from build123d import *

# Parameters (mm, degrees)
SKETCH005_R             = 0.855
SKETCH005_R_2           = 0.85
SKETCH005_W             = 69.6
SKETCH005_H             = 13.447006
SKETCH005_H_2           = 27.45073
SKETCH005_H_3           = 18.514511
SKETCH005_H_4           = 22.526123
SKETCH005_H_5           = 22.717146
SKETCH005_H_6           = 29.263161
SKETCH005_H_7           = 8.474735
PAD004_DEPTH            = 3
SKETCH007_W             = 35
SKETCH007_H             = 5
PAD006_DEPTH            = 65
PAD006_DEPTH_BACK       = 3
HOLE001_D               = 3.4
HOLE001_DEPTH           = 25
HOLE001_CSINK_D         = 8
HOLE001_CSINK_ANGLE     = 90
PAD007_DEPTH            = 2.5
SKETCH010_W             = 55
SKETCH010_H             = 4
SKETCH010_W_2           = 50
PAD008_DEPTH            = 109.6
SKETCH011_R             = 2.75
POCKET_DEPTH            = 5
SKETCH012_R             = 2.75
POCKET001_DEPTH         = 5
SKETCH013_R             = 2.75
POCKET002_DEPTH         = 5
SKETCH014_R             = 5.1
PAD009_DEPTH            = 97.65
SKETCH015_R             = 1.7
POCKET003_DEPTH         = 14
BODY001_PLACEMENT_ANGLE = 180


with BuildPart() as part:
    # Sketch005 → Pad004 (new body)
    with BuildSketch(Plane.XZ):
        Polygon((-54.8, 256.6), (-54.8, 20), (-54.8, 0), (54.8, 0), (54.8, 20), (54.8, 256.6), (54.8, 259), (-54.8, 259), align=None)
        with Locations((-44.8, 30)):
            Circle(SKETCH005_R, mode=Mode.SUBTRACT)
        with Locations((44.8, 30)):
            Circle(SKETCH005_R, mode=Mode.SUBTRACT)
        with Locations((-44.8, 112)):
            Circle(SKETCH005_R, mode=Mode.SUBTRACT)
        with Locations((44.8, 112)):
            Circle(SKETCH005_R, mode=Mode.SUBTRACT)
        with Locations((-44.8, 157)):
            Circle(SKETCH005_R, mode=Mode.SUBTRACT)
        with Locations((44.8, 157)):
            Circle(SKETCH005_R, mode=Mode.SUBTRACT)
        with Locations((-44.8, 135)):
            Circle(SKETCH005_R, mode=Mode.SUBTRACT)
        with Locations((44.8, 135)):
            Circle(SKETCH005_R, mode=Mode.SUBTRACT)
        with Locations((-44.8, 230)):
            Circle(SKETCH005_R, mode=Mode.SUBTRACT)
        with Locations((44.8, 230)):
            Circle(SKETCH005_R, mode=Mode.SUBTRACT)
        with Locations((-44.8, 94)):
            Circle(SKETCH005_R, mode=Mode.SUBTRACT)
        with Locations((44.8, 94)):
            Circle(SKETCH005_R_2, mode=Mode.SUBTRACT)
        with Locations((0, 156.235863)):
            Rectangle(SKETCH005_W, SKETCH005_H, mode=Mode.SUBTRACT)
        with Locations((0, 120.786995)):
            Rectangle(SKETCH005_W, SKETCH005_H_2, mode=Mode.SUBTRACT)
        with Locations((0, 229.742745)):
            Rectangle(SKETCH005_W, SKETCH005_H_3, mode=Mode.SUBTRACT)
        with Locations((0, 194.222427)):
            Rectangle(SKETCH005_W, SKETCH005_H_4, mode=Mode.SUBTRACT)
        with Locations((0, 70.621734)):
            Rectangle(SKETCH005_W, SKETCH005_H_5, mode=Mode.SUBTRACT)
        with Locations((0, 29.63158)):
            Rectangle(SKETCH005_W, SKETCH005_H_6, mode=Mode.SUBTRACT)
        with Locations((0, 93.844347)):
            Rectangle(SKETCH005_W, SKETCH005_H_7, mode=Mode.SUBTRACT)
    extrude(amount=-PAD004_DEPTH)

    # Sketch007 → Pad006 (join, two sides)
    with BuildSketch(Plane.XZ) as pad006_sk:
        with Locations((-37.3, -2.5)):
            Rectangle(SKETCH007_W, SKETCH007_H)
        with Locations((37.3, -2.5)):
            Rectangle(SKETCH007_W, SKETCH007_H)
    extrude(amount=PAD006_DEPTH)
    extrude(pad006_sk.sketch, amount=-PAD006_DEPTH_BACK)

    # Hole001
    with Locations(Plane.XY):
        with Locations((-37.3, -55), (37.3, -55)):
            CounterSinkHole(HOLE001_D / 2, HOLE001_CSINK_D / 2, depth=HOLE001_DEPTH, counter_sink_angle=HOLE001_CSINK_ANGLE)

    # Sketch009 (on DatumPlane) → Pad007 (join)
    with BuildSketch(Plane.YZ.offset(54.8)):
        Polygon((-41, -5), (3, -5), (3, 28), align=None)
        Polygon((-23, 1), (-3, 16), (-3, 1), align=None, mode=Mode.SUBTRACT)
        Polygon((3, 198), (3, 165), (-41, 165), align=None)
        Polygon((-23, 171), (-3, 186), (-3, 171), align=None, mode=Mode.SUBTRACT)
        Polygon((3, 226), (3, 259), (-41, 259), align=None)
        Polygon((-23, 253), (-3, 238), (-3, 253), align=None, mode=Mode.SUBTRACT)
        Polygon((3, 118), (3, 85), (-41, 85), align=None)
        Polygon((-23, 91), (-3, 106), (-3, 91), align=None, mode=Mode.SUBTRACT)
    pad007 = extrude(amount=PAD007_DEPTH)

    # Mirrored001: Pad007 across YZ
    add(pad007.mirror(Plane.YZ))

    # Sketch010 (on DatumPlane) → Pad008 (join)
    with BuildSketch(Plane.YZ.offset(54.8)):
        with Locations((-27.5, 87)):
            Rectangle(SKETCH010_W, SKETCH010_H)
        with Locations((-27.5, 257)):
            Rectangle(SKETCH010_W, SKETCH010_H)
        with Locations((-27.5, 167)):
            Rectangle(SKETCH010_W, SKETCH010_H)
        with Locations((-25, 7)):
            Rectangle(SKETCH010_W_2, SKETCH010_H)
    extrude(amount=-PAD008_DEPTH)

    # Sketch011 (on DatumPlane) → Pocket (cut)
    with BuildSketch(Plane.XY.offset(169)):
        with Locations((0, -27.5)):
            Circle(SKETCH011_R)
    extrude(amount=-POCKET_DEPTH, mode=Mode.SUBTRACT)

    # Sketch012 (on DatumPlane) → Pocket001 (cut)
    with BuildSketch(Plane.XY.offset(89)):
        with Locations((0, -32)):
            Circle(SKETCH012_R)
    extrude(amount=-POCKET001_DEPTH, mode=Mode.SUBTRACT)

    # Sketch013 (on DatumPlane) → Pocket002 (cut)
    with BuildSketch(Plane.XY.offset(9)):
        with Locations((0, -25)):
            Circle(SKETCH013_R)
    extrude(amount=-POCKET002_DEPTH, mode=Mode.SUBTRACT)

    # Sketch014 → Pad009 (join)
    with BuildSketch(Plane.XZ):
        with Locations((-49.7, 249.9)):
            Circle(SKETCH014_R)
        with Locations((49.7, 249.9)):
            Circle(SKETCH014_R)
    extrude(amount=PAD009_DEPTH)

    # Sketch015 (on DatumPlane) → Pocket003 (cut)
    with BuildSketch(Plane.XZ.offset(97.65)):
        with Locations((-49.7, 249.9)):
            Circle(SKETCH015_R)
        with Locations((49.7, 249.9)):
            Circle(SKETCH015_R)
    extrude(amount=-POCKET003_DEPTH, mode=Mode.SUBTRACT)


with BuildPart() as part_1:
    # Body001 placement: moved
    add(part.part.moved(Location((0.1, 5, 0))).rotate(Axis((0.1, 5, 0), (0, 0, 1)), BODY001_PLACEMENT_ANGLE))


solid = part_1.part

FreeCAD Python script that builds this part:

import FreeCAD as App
import Part
import Sketcher

doc = App.newDocument("Part")
body = doc.addObject("PartDesign::Body", "Body")

# Sketch on XZ plane
sketch1 = doc.addObject("Sketcher::SketchObject", "Sketch")
body.addObject(sketch1)
sketch1.AttachmentSupport = (doc.XZ_Plane, [""])
sketch1.MapMode = "FlatFace"
sketch1.addGeometry([
    Part.LineSegment(App.Vector(-54.8, 0, 0), App.Vector(54.8, 0, 0)),  # 0
    Part.LineSegment(App.Vector(54.8, 0, 0), App.Vector(54.8, 259, 0)),  # 1
    Part.LineSegment(App.Vector(54.8, 259, 0), App.Vector(-54.8, 259, 0)),  # 2
    Part.LineSegment(App.Vector(-54.8, 259, 0), App.Vector(-54.8, 0, 0)),  # 3
    Part.Circle(App.Vector(-44.8, 30, 0), App.Vector(0, 0, 1), 0.855),  # 4
    Part.Circle(App.Vector(-44.8, 94, 0), App.Vector(0, 0, 1), 0.855),  # 5
    Part.Circle(App.Vector(-44.8, 112, 0), App.Vector(0, 0, 1), 0.855),  # 6
    Part.LineSegment(App.Vector(34.8, 14.999999, 0), App.Vector(-34.8, 14.999999, 0)),  # 7
    Part.LineSegment(App.Vector(-34.8, 14.999999, 0), App.Vector(-34.8, 44.26316, 0)),  # 8
    Part.LineSegment(App.Vector(-34.8, 44.26316, 0), App.Vector(34.8, 44.26316, 0)),  # 9
    Part.LineSegment(App.Vector(34.8, 44.26316, 0), App.Vector(34.8, 14.999999, 0)),  # 10
    Part.LineSegment(App.Vector(34.8, 59.263161, 0), App.Vector(-34.8, 59.263161, 0)),  # 11
    Part.LineSegment(App.Vector(-34.8, 59.263161, 0), App.Vector(-34.8, 81.980307, 0)),  # 12
    Part.LineSegment(App.Vector(-34.8, 81.980307, 0), App.Vector(34.8, 81.980307, 0)),  # 13
    Part.LineSegment(App.Vector(34.8, 81.980307, 0), App.Vector(34.8, 59.263161, 0)),  # 14
    Part.Circle(App.Vector(44.8, 30, 0), App.Vector(0, 0, 1), 0.855),  # 15
    Part.LineSegment(App.Vector(34.8, 89.606979, 0), App.Vector(-34.8, 89.606979, 0)),  # 16
    Part.LineSegment(App.Vector(-34.8, 89.606979, 0), App.Vector(-34.8, 98.081715, 0)),  # 17
    Part.LineSegment(App.Vector(-34.8, 98.081715, 0), App.Vector(34.8, 98.081715, 0)),  # 18
    Part.LineSegment(App.Vector(34.8, 98.081715, 0), App.Vector(34.8, 89.606979, 0)),  # 19
    Part.LineSegment(App.Vector(34.8, 107.06163, 0), App.Vector(-34.8, 107.06163, 0)),  # 20
    Part.LineSegment(App.Vector(-34.8, 107.06163, 0), App.Vector(-34.8, 134.51236, 0)),  # 21
    Part.LineSegment(App.Vector(-34.8, 134.51236, 0), App.Vector(34.8, 134.51236, 0)),  # 22
    Part.LineSegment(App.Vector(34.8, 134.51236, 0), App.Vector(34.8, 107.06163, 0)),  # 23
    Part.Circle(App.Vector(44.8, 94, 0), App.Vector(0, 0, 1), 0.85),  # 24
    Part.Circle(App.Vector(44.8, 112, 0), App.Vector(0, 0, 1), 0.855),  # 25
    Part.Circle(App.Vector(-44.8, 135, 0), App.Vector(0, 0, 1), 0.855),  # 26
    Part.Circle(App.Vector(-44.8, 157, 0), App.Vector(0, 0, 1), 0.855),  # 27
    Part.Circle(App.Vector(-44.8, 230, 0), App.Vector(0, 0, 1), 0.855),  # 28
    Part.LineSegment(App.Vector(34.8, 149.51236, 0), App.Vector(-34.8, 149.51236, 0)),  # 29
    Part.LineSegment(App.Vector(-34.8, 149.51236, 0), App.Vector(-34.8, 162.959366, 0)),  # 30
    Part.LineSegment(App.Vector(-34.8, 162.959366, 0), App.Vector(34.8, 162.959366, 0)),  # 31
    Part.LineSegment(App.Vector(34.8, 162.959366, 0), App.Vector(34.8, 149.51236, 0)),  # 32
    Part.Circle(App.Vector(44.8, 135, 0), App.Vector(0, 0, 1), 0.855),  # 33
    Part.Circle(App.Vector(44.8, 157, 0), App.Vector(0, 0, 1), 0.855),  # 34
    Part.LineSegment(App.Vector(34.8, 182.959365, 0), App.Vector(-34.8, 182.959365, 0)),  # 35
    Part.LineSegment(App.Vector(-34.8, 182.959365, 0), App.Vector(-34.8, 205.485489, 0)),  # 36
    Part.LineSegment(App.Vector(-34.8, 205.485489, 0), App.Vector(34.8, 205.485489, 0)),  # 37
    Part.LineSegment(App.Vector(34.8, 205.485489, 0), App.Vector(34.8, 182.959365, 0)),  # 38
    Part.LineSegment(App.Vector(34.8, 220.485489, 0), App.Vector(-34.8, 220.485489, 0)),  # 39
    Part.LineSegment(App.Vector(-34.8, 220.485489, 0), App.Vector(-34.8, 239, 0)),  # 40
    Part.LineSegment(App.Vector(-34.8, 239, 0), App.Vector(34.8, 239, 0)),  # 41
    Part.LineSegment(App.Vector(34.8, 239, 0), App.Vector(34.8, 220.485489, 0)),  # 42
    Part.Circle(App.Vector(44.8, 230, 0), App.Vector(0, 0, 1), 0.855),  # 43
], False)
sketch1.addConstraint([
    Sketcher.Constraint("Coincident", 0, 2, 1, 1),
    Sketcher.Constraint("Coincident", 1, 2, 2, 1),
    Sketcher.Constraint("Coincident", 2, 2, 3, 1),
    Sketcher.Constraint("Coincident", 3, 2, 0, 1),
    Sketcher.Constraint("Coincident", 7, 2, 8, 1),
    Sketcher.Constraint("Coincident", 8, 2, 9, 1),
    Sketcher.Constraint("Coincident", 9, 2, 10, 1),
    Sketcher.Constraint("Coincident", 10, 2, 7, 1),
    Sketcher.Constraint("Coincident", 11, 2, 12, 1),
    Sketcher.Constraint("Coincident", 12, 2, 13, 1),
    Sketcher.Constraint("Coincident", 13, 2, 14, 1),
    Sketcher.Constraint("Coincident", 14, 2, 11, 1),
    Sketcher.Constraint("Coincident", 16, 2, 17, 1),
    Sketcher.Constraint("Coincident", 17, 2, 18, 1),
    Sketcher.Constraint("Coincident", 18, 2, 19, 1),
    Sketcher.Constraint("Coincident", 19, 2, 16, 1),
    Sketcher.Constraint("Coincident", 20, 2, 21, 1),
    Sketcher.Constraint("Coincident", 21, 2, 22, 1),
    Sketcher.Constraint("Coincident", 22, 2, 23, 1),
    Sketcher.Constraint("Coincident", 23, 2, 20, 1),
    Sketcher.Constraint("Coincident", 29, 2, 30, 1),
    Sketcher.Constraint("Coincident", 30, 2, 31, 1),
    Sketcher.Constraint("Coincident", 31, 2, 32, 1),
    Sketcher.Constraint("Coincident", 32, 2, 29, 1),
    Sketcher.Constraint("Coincident", 35, 2, 36, 1),
    Sketcher.Constraint("Coincident", 36, 2, 37, 1),
    Sketcher.Constraint("Coincident", 37, 2, 38, 1),
    Sketcher.Constraint("Coincident", 38, 2, 35, 1),
    Sketcher.Constraint("Coincident", 39, 2, 40, 1),
    Sketcher.Constraint("Coincident", 40, 2, 41, 1),
    Sketcher.Constraint("Coincident", 41, 2, 42, 1),
    Sketcher.Constraint("Coincident", 42, 2, 39, 1),
    Sketcher.Constraint("Horizontal", 0),
    Sketcher.Constraint("Vertical", 1),
    Sketcher.Constraint("Horizontal", 2),
    Sketcher.Constraint("Vertical", 3),
    Sketcher.Constraint("Horizontal", 7),
    Sketcher.Constraint("Vertical", 8),
    Sketcher.Constraint("Horizontal", 9),
    Sketcher.Constraint("Vertical", 10),
    Sketcher.Constraint("Horizontal", 11),
    Sketcher.Constraint("Vertical", 12),
    Sketcher.Constraint("Horizontal", 13),
    Sketcher.Constraint("Vertical", 14),
    Sketcher.Constraint("Horizontal", 16),
    Sketcher.Constraint("Vertical", 17),
    Sketcher.Constraint("Horizontal", 18),
    Sketcher.Constraint("Vertical", 19),
    Sketcher.Constraint("Horizontal", 20),
    Sketcher.Constraint("Vertical", 21),
    Sketcher.Constraint("Horizontal", 22),
    Sketcher.Constraint("Vertical", 23),
    Sketcher.Constraint("Horizontal", 29),
    Sketcher.Constraint("Vertical", 30),
    Sketcher.Constraint("Horizontal", 31),
    Sketcher.Constraint("Vertical", 32),
    Sketcher.Constraint("Horizontal", 35),
    Sketcher.Constraint("Vertical", 36),
    Sketcher.Constraint("Horizontal", 37),
    Sketcher.Constraint("Vertical", 38),
    Sketcher.Constraint("Horizontal", 39),
    Sketcher.Constraint("Vertical", 40),
    Sketcher.Constraint("Horizontal", 41),
    Sketcher.Constraint("Vertical", 42),
    Sketcher.Constraint("Equal", 4, 5),
    Sketcher.Constraint("Equal", 5, 6),
    Sketcher.Constraint("Equal", 6, 15),
    Sketcher.Constraint("Equal", 15, 25),
    Sketcher.Constraint("Equal", 25, 26),
    Sketcher.Constraint("Equal", 26, 27),
    Sketcher.Constraint("Equal", 27, 28),
    Sketcher.Constraint("Equal", 28, 33),
    Sketcher.Constraint("Equal", 33, 34),
    Sketcher.Constraint("Equal", 34, 43),
    Sketcher.Constraint("Symmetric", 0, 2, 3, 2, -1, 1),
    Sketcher.Constraint("Symmetric", 4, 3, 15, 3, -2),
    Sketcher.Constraint("Symmetric", 5, 3, 24, 3, -2),
    Sketcher.Constraint("Symmetric", 6, 3, 25, 3, -2),
    Sketcher.Constraint("Symmetric", 26, 3, 33, 3, -2),
    Sketcher.Constraint("Symmetric", 27, 3, 34, 3, -2),
    Sketcher.Constraint("Symmetric", 28, 3, 43, 3, -2),
    Sketcher.Constraint("Vertical", 4, 3, 5, 3),
    Sketcher.Constraint("Vertical", 5, 3, 6, 3),
    Sketcher.Constraint("Vertical", 6, 3, 26, 3),
    Sketcher.Constraint("Vertical", 26, 3, 27, 3),
    Sketcher.Constraint("Vertical", 27, 3, 28, 3),
    Sketcher.Constraint("Vertical", 8, 2, 11, 2),
    Sketcher.Constraint("Vertical", 10, 2, 13, 2),
    Sketcher.Constraint("Vertical", 12, 2, 16, 2),
    Sketcher.Constraint("Vertical", 14, 2, 18, 2),
    Sketcher.Constraint("Vertical", 17, 2, 20, 2),
    Sketcher.Constraint("Vertical", 19, 2, 22, 2),
    Sketcher.Constraint("Vertical", 21, 2, 29, 2),
    Sketcher.Constraint("Vertical", 23, 2, 31, 2),
    Sketcher.Constraint("Vertical", 30, 2, 35, 2),
    Sketcher.Constraint("Vertical", 32, 2, 37, 2),
    Sketcher.Constraint("Vertical", 36, 2, 39, 2),
    Sketcher.Constraint("Vertical", 38, 2, 41, 2),
    Sketcher.Constraint("Diameter", 24, 1.7),
    Sketcher.Constraint("Diameter", 4, 1.71),
    Sketcher.Constraint("DistanceY", 1, 1, 1, 2, 259.0),
    Sketcher.Constraint("DistanceX", 0, 1, 0, 2, 109.6),
    Sketcher.Constraint("DistanceX", 7, 2, 7, 1, 69.6),
    Sketcher.Constraint("DistanceY", -1, 1, 4, 3, 30.0),
    Sketcher.Constraint("DistanceY", -1, 1, 5, 3, 94.0),
    Sketcher.Constraint("DistanceY", -1, 1, 6, 3, 112.0),
    Sketcher.Constraint("DistanceY", -1, 1, 26, 3, 135.0),
    Sketcher.Constraint("DistanceY", -1, 1, 27, 3, 157.0),
    Sketcher.Constraint("DistanceY", -1, 1, 28, 3, 230.0),
    Sketcher.Constraint("DistanceY", -1, 1, 7, 2, 14.999999),
    Sketcher.Constraint("DistanceY", -1, 1, 40, 2, 239.0),
    Sketcher.Constraint("DistanceX", 15, 3, 0, 2, 10.0),
    Sketcher.Constraint("DistanceX", 4, 3, 7, 2, 10.0),
    Sketcher.Constraint("DistanceY", 8, 2, 11, 2, 15.0),
    Sketcher.Constraint("DistanceY", 21, 2, 29, 2, 15.0),
    Sketcher.Constraint("DistanceY", 30, 2, 35, 2, 20.0),
    Sketcher.Constraint("DistanceY", 36, 2, 39, 2, 15.000001),
    Sketcher.Constraint("DistanceY", 8, 1, 8, 2, 29.263161),
    Sketcher.Constraint("DistanceY", 21, 1, 21, 2, 27.45073),
    Sketcher.Constraint("DistanceY", 40, 1, 40, 2, 18.514511),
    Sketcher.Constraint("DistanceY", 12, 1, 12, 2, 22.717146),
    Sketcher.Constraint("DistanceY", 17, 1, 17, 2, 8.474735),
    Sketcher.Constraint("DistanceY", 30, 1, 30, 2, 13.447006),
    Sketcher.Constraint("DistanceY", 36, 1, 36, 2, 22.526123),
    Sketcher.Constraint("DistanceY", -1, 1, 16, 2, 89.606979),
])
pad1 = doc.addObject("PartDesign::Pad", "Pad")
body.addObject(pad1)
pad1.Profile = sketch1
pad1.Length = 3
pad1.Reversed = True

# Sketch on XZ plane
sketch2 = doc.addObject("Sketcher::SketchObject", "Sketch001")
body.addObject(sketch2)
sketch2.AttachmentSupport = (doc.XZ_Plane, [""])
sketch2.MapMode = "FlatFace"
sketch2.addGeometry([
    Part.LineSegment(App.Vector(-54.8, 0, 0), App.Vector(-54.8, -5, 0)),  # 0
    Part.LineSegment(App.Vector(-54.8, -5, 0), App.Vector(-19.8, -5, 0)),  # 1
    Part.LineSegment(App.Vector(-19.8, -5, 0), App.Vector(-19.8, 0, 0)),  # 2
    Part.LineSegment(App.Vector(-19.8, 0, 0), App.Vector(-54.8, 0, 0)),  # 3
    Part.LineSegment(App.Vector(19.8, 0, 0), App.Vector(19.8, -5, 0)),  # 4
    Part.LineSegment(App.Vector(19.8, -5, 0), App.Vector(54.8, -5, 0)),  # 5
    Part.LineSegment(App.Vector(54.8, -5, 0), App.Vector(54.8, 0, 0)),  # 6
    Part.LineSegment(App.Vector(54.8, 0, 0), App.Vector(19.8, 0, 0)),  # 7
], False)
sketch2.addConstraint([
    Sketcher.Constraint("Coincident", 0, 2, 1, 1),
    Sketcher.Constraint("Coincident", 1, 2, 2, 1),
    Sketcher.Constraint("Coincident", 2, 2, 3, 1),
    Sketcher.Constraint("Coincident", 3, 2, 0, 1),
    Sketcher.Constraint("Coincident", 4, 2, 5, 1),
    Sketcher.Constraint("Coincident", 5, 2, 6, 1),
    Sketcher.Constraint("Coincident", 6, 2, 7, 1),
    Sketcher.Constraint("Coincident", 7, 2, 4, 1),
    Sketcher.Constraint("Vertical", 0),
    Sketcher.Constraint("Horizontal", 1),
    Sketcher.Constraint("Vertical", 2),
    Sketcher.Constraint("Horizontal", 3),
    Sketcher.Constraint("Vertical", 4),
    Sketcher.Constraint("Horizontal", 5),
    Sketcher.Constraint("Vertical", 6),
    Sketcher.Constraint("Horizontal", 7),
    Sketcher.Constraint("Symmetric", 3, 2, 6, 2, -1, 1),
    Sketcher.Constraint("Symmetric", 1, 2, 4, 2, -2),
    Sketcher.Constraint("PointOnObject", 2, 2, -1),
    Sketcher.Constraint("DistanceX", 1, 1, 1, 2, 35.0),
    Sketcher.Constraint("DistanceY", 0, 2, 0, 1, 5.0),
    Sketcher.Constraint("DistanceX", 0, 2, -1, 1, 54.8),
])
pad2 = doc.addObject("PartDesign::Pad", "Pad001")
body.addObject(pad2)
pad2.Profile = sketch2
pad2.Type = "TwoLengths"
pad2.Length = 65
pad2.Length2 = 3

# Sketch on XY plane
sketch3 = doc.addObject("Sketcher::SketchObject", "Sketch002")
body.addObject(sketch3)
sketch3.AttachmentSupport = (doc.XY_Plane, [""])
sketch3.MapMode = "FlatFace"
sketch3.addGeometry([
    Part.Circle(App.Vector(-37.3, -55, 0), App.Vector(0, 0, 1), 1.7),
    Part.Circle(App.Vector(37.3, -55, 0), App.Vector(0, 0, 1), 1.7),
], False)
sketch3.addConstraint([
    Sketcher.Constraint("Equal", 0, 1),
    Sketcher.Constraint("Symmetric", 0, 3, 1, 3, -2),
    Sketcher.Constraint("Diameter", 0, 3.4),
    Sketcher.Constraint("DistanceY", 0, 3, -1, 1, 55.0),
    Sketcher.Constraint("DistanceX", 0, 3, -1, 1, 37.3),
])
doc.recompute()
hole = doc.addObject("PartDesign::Hole", "Hole")
body.addObject(hole)
hole.Profile = sketch3
hole.ThreadType = "None"
hole.Diameter = 3.4
hole.DepthType = "Dimension"
hole.Depth = 25
hole.DrillPoint = "Flat"
hole.HoleCutType = "Countersink"
hole.HoleCutDiameter = 8
hole.HoleCutCountersinkAngle = 90

# Sketch on YZ plane
sketch4 = doc.addObject("Sketcher::SketchObject", "Sketch003")
body.addObject(sketch4)
sketch4.AttachmentSupport = (doc.YZ_Plane, [""])
sketch4.MapMode = "FlatFace"
sketch4.AttachmentOffset = App.Placement(App.Vector(0, 0, 54.8), App.Rotation())
sketch4.addGeometry([
    Part.LineSegment(App.Vector(-41, -5, 0), App.Vector(3, -5, 0)),  # 0
    Part.LineSegment(App.Vector(3, -5, 0), App.Vector(3, 28, 0)),  # 1
    Part.LineSegment(App.Vector(3, 28, 0), App.Vector(-41, -5, 0)),  # 2
    Part.LineSegment(App.Vector(-3, 1, 0), App.Vector(-23, 1, 0)),  # 3
    Part.LineSegment(App.Vector(-23, 1, 0), App.Vector(-3, 16, 0)),  # 4
    Part.LineSegment(App.Vector(-3, 16, 0), App.Vector(-3, 1, 0)),  # 5
    Part.LineSegment(App.Vector(3, 165, 0), App.Vector(3, 198, 0)),  # 6
    Part.LineSegment(App.Vector(3, 198, 0), App.Vector(-41, 165, 0)),  # 7
    Part.LineSegment(App.Vector(-41, 165, 0), App.Vector(3, 165, 0)),  # 8
    Part.LineSegment(App.Vector(-23, 171, 0), App.Vector(-3, 186, 0)),  # 9
    Part.LineSegment(App.Vector(-3, 186, 0), App.Vector(-3, 171, 0)),  # 10
    Part.LineSegment(App.Vector(-3, 171, 0), App.Vector(-23, 171, 0)),  # 11
    Part.LineSegment(App.Vector(3, 226, 0), App.Vector(3, 259, 0)),  # 12
    Part.LineSegment(App.Vector(3, 259, 0), App.Vector(-41, 259, 0)),  # 13
    Part.LineSegment(App.Vector(-41, 259, 0), App.Vector(3, 226, 0)),  # 14
    Part.LineSegment(App.Vector(-3, 238, 0), App.Vector(-23, 253, 0)),  # 15
    Part.LineSegment(App.Vector(-23, 253, 0), App.Vector(-3, 253, 0)),  # 16
    Part.LineSegment(App.Vector(-3, 253, 0), App.Vector(-3, 238, 0)),  # 17
    Part.LineSegment(App.Vector(3, 85, 0), App.Vector(3, 118, 0)),  # 18
    Part.LineSegment(App.Vector(3, 118, 0), App.Vector(-41, 85, 0)),  # 19
    Part.LineSegment(App.Vector(-41, 85, 0), App.Vector(3, 85, 0)),  # 20
    Part.LineSegment(App.Vector(-23, 91, 0), App.Vector(-3, 106, 0)),  # 21
    Part.LineSegment(App.Vector(-3, 106, 0), App.Vector(-3, 91, 0)),  # 22
    Part.LineSegment(App.Vector(-3, 91, 0), App.Vector(-23, 91, 0)),  # 23
], False)
sketch4.addConstraint([
    Sketcher.Constraint("Coincident", 0, 2, 1, 1),
    Sketcher.Constraint("Coincident", 1, 2, 2, 1),
    Sketcher.Constraint("Coincident", 2, 2, 0, 1),
    Sketcher.Constraint("Coincident", 3, 2, 4, 1),
    Sketcher.Constraint("Coincident", 4, 2, 5, 1),
    Sketcher.Constraint("Coincident", 5, 2, 3, 1),
    Sketcher.Constraint("Coincident", 6, 2, 7, 1),
    Sketcher.Constraint("Coincident", 7, 2, 8, 1),
    Sketcher.Constraint("Coincident", 8, 2, 6, 1),
    Sketcher.Constraint("Coincident", 9, 2, 10, 1),
    Sketcher.Constraint("Coincident", 10, 2, 11, 1),
    Sketcher.Constraint("Coincident", 11, 2, 9, 1),
    Sketcher.Constraint("Coincident", 12, 2, 13, 1),
    Sketcher.Constraint("Coincident", 13, 2, 14, 1),
    Sketcher.Constraint("Coincident", 14, 2, 12, 1),
    Sketcher.Constraint("Coincident", 15, 2, 16, 1),
    Sketcher.Constraint("Coincident", 16, 2, 17, 1),
    Sketcher.Constraint("Coincident", 17, 2, 15, 1),
    Sketcher.Constraint("Coincident", 18, 2, 19, 1),
    Sketcher.Constraint("Coincident", 19, 2, 20, 1),
    Sketcher.Constraint("Coincident", 20, 2, 18, 1),
    Sketcher.Constraint("Coincident", 21, 2, 22, 1),
    Sketcher.Constraint("Coincident", 22, 2, 23, 1),
    Sketcher.Constraint("Coincident", 23, 2, 21, 1),
    Sketcher.Constraint("Horizontal", 0),
    Sketcher.Constraint("Vertical", 1),
    Sketcher.Constraint("Horizontal", 3),
    Sketcher.Constraint("Vertical", 5),
    Sketcher.Constraint("Vertical", 6),
    Sketcher.Constraint("Horizontal", 8),
    Sketcher.Constraint("Vertical", 10),
    Sketcher.Constraint("Horizontal", 11),
    Sketcher.Constraint("Vertical", 12),
    Sketcher.Constraint("Horizontal", 13),
    Sketcher.Constraint("Horizontal", 16),
    Sketcher.Constraint("Vertical", 17),
    Sketcher.Constraint("Vertical", 18),
    Sketcher.Constraint("Horizontal", 20),
    Sketcher.Constraint("Vertical", 22),
    Sketcher.Constraint("Horizontal", 23),
    Sketcher.Constraint("Parallel", 2, 4),
    Sketcher.Constraint("Parallel", 4, 7),
    Sketcher.Constraint("Parallel", 7, 9),
    Sketcher.Constraint("Parallel", 14, 15),
    Sketcher.Constraint("Parallel", 9, 19),
    Sketcher.Constraint("Parallel", 19, 21),
    Sketcher.Constraint("Vertical", 1, 2, 6, 2),
    Sketcher.Constraint("Vertical", 2, 2, 7, 2),
    Sketcher.Constraint("Vertical", 5, 2, 9, 2),
    Sketcher.Constraint("Vertical", 3, 2, 11, 2),
    Sketcher.Constraint("Vertical", 8, 2, 12, 2),
    Sketcher.Constraint("Vertical", 7, 2, 13, 2),
    Sketcher.Constraint("Vertical", 11, 2, 15, 2),
    Sketcher.Constraint("Vertical", 10, 2, 16, 2),
    Sketcher.Constraint("Vertical", 14, 2, 18, 2),
    Sketcher.Constraint("Vertical", 13, 2, 19, 2),
    Sketcher.Constraint("Vertical", 17, 2, 21, 2),
    Sketcher.Constraint("Vertical", 15, 2, 23, 2),
    Sketcher.Constraint("Equal", 6, 12),
    Sketcher.Constraint("DistanceX", 0, 1, 0, 2, 44.0),
    Sketcher.Constraint("DistanceX", 3, 2, 3, 1, 20.0),
    Sketcher.Constraint("DistanceY", 1, 1, 1, 2, 33.0),
    Sketcher.Constraint("DistanceX", -1, 1, 0, 2, 3.0),
    Sketcher.Constraint("DistanceY", 0, 2, -1, 1, 5.0),
    Sketcher.Constraint("DistanceX", 3, 2, -1, 1, 23.0),
    Sketcher.Constraint("DistanceY", -1, 1, 3, 2, 1.0),
    Sketcher.Constraint("DistanceY", -1, 1, 6, 2, 198.0),
    Sketcher.Constraint("DistanceY", -1, 1, 9, 2, 186.0),
    Sketcher.Constraint("DistanceY", -1, 1, 12, 2, 259.0),
    Sketcher.Constraint("DistanceY", -1, 1, 15, 2, 253.0),
    Sketcher.Constraint("DistanceY", -1, 1, 18, 2, 118.0),
    Sketcher.Constraint("DistanceY", -1, 1, 21, 2, 106.0),
])
pad3 = doc.addObject("PartDesign::Pad", "Pad002")
body.addObject(pad3)
pad3.Profile = sketch4
pad3.Length = 2.5
doc.recompute()

mirrored = doc.addObject("PartDesign::Mirrored", "Mirrored")
body.addObject(mirrored)
mirrored.Originals = [pad3]
mirrored.MirrorPlane = (doc.YZ_Plane, [""])
body.Tip = mirrored

# Sketch on YZ plane
sketch5 = doc.addObject("Sketcher::SketchObject", "Sketch004")
body.addObject(sketch5)
sketch5.AttachmentSupport = (doc.YZ_Plane, [""])
sketch5.MapMode = "FlatFace"
sketch5.AttachmentOffset = App.Placement(App.Vector(0, 0, 54.8), App.Rotation())
sketch5.addGeometry([
    Part.LineSegment(App.Vector(-55, 89, 0), App.Vector(-55, 85, 0)),  # 0
    Part.LineSegment(App.Vector(-55, 85, 0), App.Vector(0, 85, 0)),  # 1
    Part.LineSegment(App.Vector(0, 85, 0), App.Vector(0, 89, 0)),  # 2
    Part.LineSegment(App.Vector(0, 89, 0), App.Vector(-55, 89, 0)),  # 3
    Part.LineSegment(App.Vector(-55, 259, 0), App.Vector(-55, 255, 0)),  # 4
    Part.LineSegment(App.Vector(-55, 255, 0), App.Vector(0, 255, 0)),  # 5
    Part.LineSegment(App.Vector(0, 255, 0), App.Vector(0, 259, 0)),  # 6
    Part.LineSegment(App.Vector(0, 259, 0), App.Vector(-55, 259, 0)),  # 7
    Part.LineSegment(App.Vector(-55, 169, 0), App.Vector(-55, 165, 0)),  # 8
    Part.LineSegment(App.Vector(-55, 165, 0), App.Vector(0, 165, 0)),  # 9
    Part.LineSegment(App.Vector(0, 165, 0), App.Vector(0, 169, 0)),  # 10
    Part.LineSegment(App.Vector(0, 169, 0), App.Vector(-55, 169, 0)),  # 11
    Part.LineSegment(App.Vector(-50, 9, 0), App.Vector(-50, 5, 0)),  # 12
    Part.LineSegment(App.Vector(-50, 5, 0), App.Vector(0, 5, 0)),  # 13
    Part.LineSegment(App.Vector(0, 5, 0), App.Vector(0, 9, 0)),  # 14
    Part.LineSegment(App.Vector(0, 9, 0), App.Vector(-50, 9, 0)),  # 15
], False)
sketch5.addConstraint([
    Sketcher.Constraint("Coincident", 0, 2, 1, 1),
    Sketcher.Constraint("Coincident", 1, 2, 2, 1),
    Sketcher.Constraint("Coincident", 2, 2, 3, 1),
    Sketcher.Constraint("Coincident", 3, 2, 0, 1),
    Sketcher.Constraint("Coincident", 4, 2, 5, 1),
    Sketcher.Constraint("Coincident", 5, 2, 6, 1),
    Sketcher.Constraint("Coincident", 6, 2, 7, 1),
    Sketcher.Constraint("Coincident", 7, 2, 4, 1),
    Sketcher.Constraint("Coincident", 8, 2, 9, 1),
    Sketcher.Constraint("Coincident", 9, 2, 10, 1),
    Sketcher.Constraint("Coincident", 10, 2, 11, 1),
    Sketcher.Constraint("Coincident", 11, 2, 8, 1),
    Sketcher.Constraint("Coincident", 12, 2, 13, 1),
    Sketcher.Constraint("Coincident", 13, 2, 14, 1),
    Sketcher.Constraint("Coincident", 14, 2, 15, 1),
    Sketcher.Constraint("Coincident", 15, 2, 12, 1),
    Sketcher.Constraint("Vertical", 0),
    Sketcher.Constraint("Horizontal", 1),
    Sketcher.Constraint("Vertical", 2),
    Sketcher.Constraint("Horizontal", 3),
    Sketcher.Constraint("Vertical", 4),
    Sketcher.Constraint("Horizontal", 5),
    Sketcher.Constraint("Vertical", 6),
    Sketcher.Constraint("Horizontal", 7),
    Sketcher.Constraint("Vertical", 8),
    Sketcher.Constraint("Horizontal", 9),
    Sketcher.Constraint("Vertical", 10),
    Sketcher.Constraint("Horizontal", 11),
    Sketcher.Constraint("Vertical", 12),
    Sketcher.Constraint("Horizontal", 13),
    Sketcher.Constraint("Vertical", 14),
    Sketcher.Constraint("Horizontal", 15),
    Sketcher.Constraint("PointOnObject", 1, 2, -2),
    Sketcher.Constraint("PointOnObject", 5, 2, -2),
    Sketcher.Constraint("PointOnObject", 9, 2, -2),
    Sketcher.Constraint("PointOnObject", 13, 2, -2),
    Sketcher.Constraint("Vertical", 3, 2, 4, 2),
    Sketcher.Constraint("Vertical", 7, 2, 8, 2),
    Sketcher.Constraint("Equal", 2, 4),
    Sketcher.Constraint("Equal", 6, 8),
    Sketcher.Constraint("Equal", 10, 12),
    Sketcher.Constraint("DistanceX", 1, 1, 1, 2, 55.0),
    Sketcher.Constraint("DistanceX", 13, 1, 13, 2, 50.0),
    Sketcher.Constraint("DistanceY", 0, 2, 0, 1, 4.0),
    Sketcher.Constraint("DistanceY", -1, 1, 0, 2, 85.0),
    Sketcher.Constraint("DistanceY", -1, 1, 4, 2, 255.0),
    Sketcher.Constraint("DistanceY", -1, 1, 8, 2, 165.0),
    Sketcher.Constraint("DistanceY", -1, 1, 12, 2, 5.0),
])
pad4 = doc.addObject("PartDesign::Pad", "Pad003")
body.addObject(pad4)
pad4.Profile = sketch5
pad4.Length = 109.6
pad4.Reversed = True

# Sketch on XY plane
sketch6 = doc.addObject("Sketcher::SketchObject", "Sketch005")
body.addObject(sketch6)
sketch6.AttachmentSupport = (doc.XY_Plane, [""])
sketch6.MapMode = "FlatFace"
sketch6.AttachmentOffset = App.Placement(App.Vector(0, 0, 169), App.Rotation())
sketch6.addGeometry(Part.Circle(App.Vector(0, -27.5, 0), App.Vector(0, 0, 1), 2.75), False)
sketch6.addConstraint([
    Sketcher.Constraint("PointOnObject", 0, 3, -2),
    Sketcher.Constraint("Diameter", 0, 5.5),
    Sketcher.Constraint("DistanceY", 0, 3, -1, 1, 27.5),
])
pocket1 = doc.addObject("PartDesign::Pocket", "Pocket")
body.addObject(pocket1)
pocket1.Profile = sketch6
pocket1.Length = 5

# Sketch on XY plane
sketch7 = doc.addObject("Sketcher::SketchObject", "Sketch006")
body.addObject(sketch7)
sketch7.AttachmentSupport = (doc.XY_Plane, [""])
sketch7.MapMode = "FlatFace"
sketch7.AttachmentOffset = App.Placement(App.Vector(0, 0, 89), App.Rotation())
sketch7.addGeometry(Part.Circle(App.Vector(0, -32, 0), App.Vector(0, 0, 1), 2.75), False)
sketch7.addConstraint([
    Sketcher.Constraint("PointOnObject", 0, 3, -2),
    Sketcher.Constraint("Diameter", 0, 5.5),
    Sketcher.Constraint("DistanceY", 0, 3, -1, 1, 32.0),
])
pocket2 = doc.addObject("PartDesign::Pocket", "Pocket001")
body.addObject(pocket2)
pocket2.Profile = sketch7
pocket2.Length = 5

# Sketch on XY plane
sketch8 = doc.addObject("Sketcher::SketchObject", "Sketch007")
body.addObject(sketch8)
sketch8.AttachmentSupport = (doc.XY_Plane, [""])
sketch8.MapMode = "FlatFace"
sketch8.AttachmentOffset = App.Placement(App.Vector(0, 0, 9), App.Rotation())
sketch8.addGeometry(Part.Circle(App.Vector(0, -25, 0), App.Vector(0, 0, 1), 2.75), False)
sketch8.addConstraint([
    Sketcher.Constraint("PointOnObject", 0, 3, -2),
    Sketcher.Constraint("Diameter", 0, 5.5),
    Sketcher.Constraint("DistanceY", 0, 3, -1, 1, 25.0),
])
pocket3 = doc.addObject("PartDesign::Pocket", "Pocket002")
body.addObject(pocket3)
pocket3.Profile = sketch8
pocket3.Length = 5

# Sketch on XZ plane
sketch9 = doc.addObject("Sketcher::SketchObject", "Sketch008")
body.addObject(sketch9)
sketch9.AttachmentSupport = (doc.XZ_Plane, [""])
sketch9.MapMode = "FlatFace"
sketch9.addGeometry([
    Part.Circle(App.Vector(-49.7, 249.9, 0), App.Vector(0, 0, 1), 5.1),
    Part.Circle(App.Vector(49.7, 249.9, 0), App.Vector(0, 0, 1), 5.1),
], False)
sketch9.addConstraint([
    Sketcher.Constraint("Equal", 0, 1),
    Sketcher.Constraint("Symmetric", 0, 3, 1, 3, -2),
    Sketcher.Constraint("Diameter", 0, 10.2),
    Sketcher.Constraint("DistanceX", 0, 3, -1, 1, 49.7),
    Sketcher.Constraint("DistanceY", -1, 1, 0, 3, 249.9),
])
pad5 = doc.addObject("PartDesign::Pad", "Pad004")
body.addObject(pad5)
pad5.Profile = sketch9
pad5.Length = 97.65

# Sketch on XZ plane
sketch10 = doc.addObject("Sketcher::SketchObject", "Sketch009")
body.addObject(sketch10)
sketch10.AttachmentSupport = (doc.XZ_Plane, [""])
sketch10.MapMode = "FlatFace"
sketch10.AttachmentOffset = App.Placement(App.Vector(0, 0, 97.65), App.Rotation())
sketch10.addGeometry([
    Part.Circle(App.Vector(-49.7, 249.9, 0), App.Vector(0, 0, 1), 1.7),
    Part.Circle(App.Vector(49.7, 249.9, 0), App.Vector(0, 0, 1), 1.7),
], False)
sketch10.addConstraint([
    Sketcher.Constraint("Equal", 0, 1),
    Sketcher.Constraint("Symmetric", 0, 3, 1, 3, -2),
    Sketcher.Constraint("Diameter", 0, 3.4),
    Sketcher.Constraint("DistanceX", 0, 3, -1, 1, 49.7),
    Sketcher.Constraint("DistanceY", -1, 1, 0, 3, 249.9),
])
pocket4 = doc.addObject("PartDesign::Pocket", "Pocket003")
body.addObject(pocket4)
pocket4.Profile = sketch10
pocket4.Length = 14
body2 = doc.addObject("PartDesign::Body", "Body001")
doc.recompute()

body.Placement = App.Placement(App.Vector(0.1, 5, 0), App.Rotation(App.Vector(0, 0, 1), 180))
boolean = doc.addObject("PartDesign::Boolean", "Boolean")
body2.addObject(boolean)
boolean.Type = "Fuse"
boolean.addObjects([body])

doc.recompute()
